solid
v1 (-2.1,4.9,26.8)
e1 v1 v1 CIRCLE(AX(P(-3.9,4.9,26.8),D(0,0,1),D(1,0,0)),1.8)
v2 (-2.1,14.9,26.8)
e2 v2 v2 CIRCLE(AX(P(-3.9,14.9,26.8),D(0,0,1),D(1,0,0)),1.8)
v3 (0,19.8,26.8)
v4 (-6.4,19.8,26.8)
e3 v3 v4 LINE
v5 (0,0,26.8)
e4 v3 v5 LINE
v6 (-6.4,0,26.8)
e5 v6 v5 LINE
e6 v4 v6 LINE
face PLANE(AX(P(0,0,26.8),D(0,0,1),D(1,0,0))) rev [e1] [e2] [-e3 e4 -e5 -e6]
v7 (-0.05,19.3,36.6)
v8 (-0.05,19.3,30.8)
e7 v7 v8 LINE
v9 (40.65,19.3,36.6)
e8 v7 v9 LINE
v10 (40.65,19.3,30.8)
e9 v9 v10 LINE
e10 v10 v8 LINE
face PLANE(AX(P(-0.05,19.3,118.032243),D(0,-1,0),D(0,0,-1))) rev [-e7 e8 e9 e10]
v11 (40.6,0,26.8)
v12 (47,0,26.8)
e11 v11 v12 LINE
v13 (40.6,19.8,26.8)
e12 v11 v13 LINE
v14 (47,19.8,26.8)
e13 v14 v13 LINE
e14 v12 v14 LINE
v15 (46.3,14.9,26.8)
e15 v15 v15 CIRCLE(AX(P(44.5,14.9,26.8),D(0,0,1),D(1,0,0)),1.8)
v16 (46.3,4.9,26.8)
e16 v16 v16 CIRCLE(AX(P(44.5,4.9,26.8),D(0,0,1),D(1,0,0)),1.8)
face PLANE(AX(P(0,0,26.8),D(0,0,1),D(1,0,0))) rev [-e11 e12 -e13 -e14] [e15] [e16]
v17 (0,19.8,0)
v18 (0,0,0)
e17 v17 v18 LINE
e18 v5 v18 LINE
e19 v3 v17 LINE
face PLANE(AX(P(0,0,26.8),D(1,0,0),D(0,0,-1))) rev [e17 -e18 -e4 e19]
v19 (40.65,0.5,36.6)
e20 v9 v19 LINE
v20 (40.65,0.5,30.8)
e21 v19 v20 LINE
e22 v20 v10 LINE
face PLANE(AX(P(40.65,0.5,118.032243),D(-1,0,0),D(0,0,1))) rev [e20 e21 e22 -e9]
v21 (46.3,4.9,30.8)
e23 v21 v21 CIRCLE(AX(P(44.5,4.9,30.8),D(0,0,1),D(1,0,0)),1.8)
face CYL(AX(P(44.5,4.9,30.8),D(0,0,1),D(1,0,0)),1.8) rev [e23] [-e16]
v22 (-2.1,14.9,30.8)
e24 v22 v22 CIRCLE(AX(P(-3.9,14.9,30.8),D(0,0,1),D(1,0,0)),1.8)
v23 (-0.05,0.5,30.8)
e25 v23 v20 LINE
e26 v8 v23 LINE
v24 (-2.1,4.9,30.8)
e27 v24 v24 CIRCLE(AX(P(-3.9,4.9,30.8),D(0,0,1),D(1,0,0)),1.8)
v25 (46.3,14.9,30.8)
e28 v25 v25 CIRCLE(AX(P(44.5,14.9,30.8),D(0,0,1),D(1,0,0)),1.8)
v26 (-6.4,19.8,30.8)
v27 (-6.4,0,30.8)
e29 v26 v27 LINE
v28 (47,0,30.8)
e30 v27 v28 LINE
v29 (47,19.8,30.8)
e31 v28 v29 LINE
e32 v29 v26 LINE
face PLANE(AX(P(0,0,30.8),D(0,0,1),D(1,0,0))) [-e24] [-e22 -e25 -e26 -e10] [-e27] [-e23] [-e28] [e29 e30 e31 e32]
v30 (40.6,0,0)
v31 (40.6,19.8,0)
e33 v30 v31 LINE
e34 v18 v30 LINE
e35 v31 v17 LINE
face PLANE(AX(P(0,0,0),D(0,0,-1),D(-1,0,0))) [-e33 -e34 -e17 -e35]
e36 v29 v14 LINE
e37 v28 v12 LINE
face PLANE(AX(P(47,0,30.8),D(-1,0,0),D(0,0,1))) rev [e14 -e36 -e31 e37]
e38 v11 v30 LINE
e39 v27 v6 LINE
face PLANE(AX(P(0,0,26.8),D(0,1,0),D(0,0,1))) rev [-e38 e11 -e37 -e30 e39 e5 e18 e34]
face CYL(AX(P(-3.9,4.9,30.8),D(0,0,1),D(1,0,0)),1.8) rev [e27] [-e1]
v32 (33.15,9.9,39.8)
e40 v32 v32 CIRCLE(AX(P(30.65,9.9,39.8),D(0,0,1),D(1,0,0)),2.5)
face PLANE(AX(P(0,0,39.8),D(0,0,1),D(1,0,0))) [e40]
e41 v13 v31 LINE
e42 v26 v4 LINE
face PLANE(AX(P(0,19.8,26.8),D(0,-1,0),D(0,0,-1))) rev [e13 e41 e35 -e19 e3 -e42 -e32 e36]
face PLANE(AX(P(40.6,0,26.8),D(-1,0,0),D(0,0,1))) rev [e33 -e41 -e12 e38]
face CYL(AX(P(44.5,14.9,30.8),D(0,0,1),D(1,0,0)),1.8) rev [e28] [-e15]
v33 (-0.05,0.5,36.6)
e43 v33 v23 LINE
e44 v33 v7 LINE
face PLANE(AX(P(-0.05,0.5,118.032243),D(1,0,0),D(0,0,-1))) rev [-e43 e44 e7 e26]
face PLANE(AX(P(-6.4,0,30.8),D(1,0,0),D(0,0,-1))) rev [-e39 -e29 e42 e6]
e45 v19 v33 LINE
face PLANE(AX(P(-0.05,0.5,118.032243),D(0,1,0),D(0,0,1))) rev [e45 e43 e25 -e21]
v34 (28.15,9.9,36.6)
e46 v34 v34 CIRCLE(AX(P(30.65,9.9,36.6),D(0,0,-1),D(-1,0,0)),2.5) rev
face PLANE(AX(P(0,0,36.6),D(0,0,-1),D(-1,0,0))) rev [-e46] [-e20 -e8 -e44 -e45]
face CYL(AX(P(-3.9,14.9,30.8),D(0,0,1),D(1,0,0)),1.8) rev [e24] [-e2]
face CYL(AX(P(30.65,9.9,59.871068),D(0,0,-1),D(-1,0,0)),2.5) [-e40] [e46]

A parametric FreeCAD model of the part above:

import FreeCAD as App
import Part
import Sketcher
Q = App.Units.Quantity


def add_polygon(sketch, points):
    """Adds a closed chain of lines whose ends are joined by coincident constraints."""
    first, n = sketch.GeometryCount, len(points)
    for a, b in zip(points, points[1:] + points[:1]):
        sketch.addGeometry(Part.LineSegment(App.Vector(*a, 0), App.Vector(*b, 0)), False)
    for i in range(n):
        sketch.addConstraint(Sketcher.Constraint("Coincident", first + i, 2, first + (i + 1) % n, 1))

doc = App.newDocument("Part")
body = doc.addObject("PartDesign::Body", "Body")

# Sketch on XY plane
sketch1 = body.newObject("Sketcher::SketchObject", "Sketch")
sketch1.AttachmentSupport = (doc.getObject("XY_Plane"), [""])
sketch1.MapMode = "FlatFace"
add_polygon(sketch1, [(0, 20), (0, 0), (41, 0), (41, 20)])  # lines 0-3
sketch1.addConstraint([
    Sketcher.Constraint("Vertical", 0),
    Sketcher.Constraint("Horizontal", 1),
    Sketcher.Constraint("Vertical", 2),
    Sketcher.Constraint("Horizontal", 3),
    Sketcher.Constraint("Coincident", 0, 2, -1, 1),
    Sketcher.Constraint("DistanceX", 1, 1, 1, 2, Q("40.6 mm")),
    Sketcher.Constraint("DistanceY", 0, 2, 0, 1, Q("19.8 mm")),
])
pad1 = body.newObject("PartDesign::Pad", "Pad")
pad1.Profile = sketch1
pad1.Length = 26.8

# Sketch on XY plane
sketch2 = body.newObject("Sketcher::SketchObject", "Sketch001")
sketch2.AttachmentSupport = (doc.getObject("XY_Plane"), [""])
sketch2.MapMode = "FlatFace"
sketch2.AttachmentOffset = App.Placement(App.Vector(0, 0, 26.8), App.Rotation())
add_polygon(sketch2, [(-6, 20), (-6, 0), (47, 0), (47, 20)])  # lines 0-3
sketch2.addConstraint([
    Sketcher.Constraint("Vertical", 0),
    Sketcher.Constraint("Horizontal", 1),
    Sketcher.Constraint("Vertical", 2),
    Sketcher.Constraint("Horizontal", 3),
    Sketcher.Constraint("PointOnObject", 0, 2, -1),
    Sketcher.Constraint("DistanceX", 1, 1, 1, 2, Q("53.4 mm")),
    Sketcher.Constraint("DistanceY", 0, 2, 0, 1, Q("19.8 mm")),
    Sketcher.Constraint("DistanceX", -1, 1, 1, 2, Q("47 mm")),
])
pad2 = body.newObject("PartDesign::Pad", "Pad001")
pad2.Profile = sketch2
pad2.Length = 4

# Sketch on XY plane
sketch3 = body.newObject("Sketcher::SketchObject", "Sketch002")
sketch3.AttachmentSupport = (doc.getObject("XY_Plane"), [""])
sketch3.MapMode = "FlatFace"
sketch3.AttachmentOffset = App.Placement(App.Vector(0, 0, 30.8), App.Rotation())
sketch3.addGeometry([
    Part.Circle(App.Vector(-3.9, 14.9, 0), App.Vector(0, 0, 1), 1.8),
    Part.Circle(App.Vector(-3.9, 4.9, 0), App.Vector(0, 0, 1), 1.8),
    Part.Circle(App.Vector(44.5, 4.9, 0), App.Vector(0, 0, 1), 1.8),
    Part.Circle(App.Vector(44.5, 14.9, 0), App.Vector(0, 0, 1), 1.8),
], False)
sketch3.addConstraint([
    Sketcher.Constraint("Equal", 0, 1),
    Sketcher.Constraint("Equal", 1, 2),
    Sketcher.Constraint("Equal", 2, 3),
    Sketcher.Constraint("Horizontal", 1, 3, 2, 3),
    Sketcher.Constraint("Horizontal", 0, 3, 3, 3),
    Sketcher.Constraint("Vertical", 0, 3, 1, 3),
    Sketcher.Constraint("Vertical", 2, 3, 3, 3),
    Sketcher.Constraint("Diameter", 0, Q("3.6 mm")),
    Sketcher.Constraint("DistanceY", 1, 3, 0, 3, Q("10 mm")),
    Sketcher.Constraint("DistanceX", 0, 3, -1, 1, Q("3.9 mm")),
    Sketcher.Constraint("DistanceY", -1, 1, 0, 3, Q("14.9 mm")),
    Sketcher.Constraint("DistanceX", -1, 1, 2, 3, Q("44.5 mm")),
])
doc.recompute()
hole = body.newObject("PartDesign::Hole", "Hole")
hole.Profile = sketch3
hole.ThreadType = "None"
hole.Diameter = 3.6
hole.DepthType = "ThroughAll"

# Sketch on XY plane
sketch4 = body.newObject("Sketcher::SketchObject", "Sketch003")
sketch4.AttachmentSupport = (doc.getObject("XY_Plane"), [""])
sketch4.MapMode = "FlatFace"
sketch4.AttachmentOffset = App.Placement(App.Vector(0, 0, 30.8), App.Rotation())
add_polygon(sketch4, [(0, 19), (0, 0), (41, 0), (41, 19)])  # lines 0-3
sketch4.addConstraint([
    Sketcher.Constraint("Vertical", 0),
    Sketcher.Constraint("Horizontal", 1),
    Sketcher.Constraint("Vertical", 2),
    Sketcher.Constraint("Horizontal", 3),
    Sketcher.Constraint("DistanceX", 1, 1, 1, 2, Q("40.7 mm")),
    Sketcher.Constraint("DistanceY", 0, 2, 0, 1, Q("18.8 mm")),
    Sketcher.Constraint("DistanceY", -1, 1, 0, 2, Q("0.5 mm")),
    Sketcher.Constraint("DistanceX", 0, 2, -1, 1, Q("0.05 mm")),
])
pad3 = body.newObject("PartDesign::Pad", "Pad002")
pad3.Profile = sketch4
pad3.Length = 5.8

# Sketch on XY plane
sketch5 = body.newObject("Sketcher::SketchObject", "Sketch004")
sketch5.AttachmentSupport = (doc.getObject("XY_Plane"), [""])
sketch5.MapMode = "FlatFace"
sketch5.AttachmentOffset = App.Placement(App.Vector(0, 0, 36.6), App.Rotation())
sketch5.addGeometry(Part.Circle(App.Vector(30.6, 9.9, 0), App.Vector(0, 0, 1), 2.5), False)
sketch5.addConstraint([
    Sketcher.Constraint("Diameter", 0, Q("5 mm")),
    Sketcher.Constraint("DistanceY", -1, 1, 0, 3, Q("9.9 mm")),
    Sketcher.Constraint("DistanceX", -1, 1, 0, 3, Q("30.65 mm")),
])
pad4 = body.newObject("PartDesign::Pad", "Pad003")
pad4.Profile = sketch5
pad4.Length = 3.2

doc.recompute()
